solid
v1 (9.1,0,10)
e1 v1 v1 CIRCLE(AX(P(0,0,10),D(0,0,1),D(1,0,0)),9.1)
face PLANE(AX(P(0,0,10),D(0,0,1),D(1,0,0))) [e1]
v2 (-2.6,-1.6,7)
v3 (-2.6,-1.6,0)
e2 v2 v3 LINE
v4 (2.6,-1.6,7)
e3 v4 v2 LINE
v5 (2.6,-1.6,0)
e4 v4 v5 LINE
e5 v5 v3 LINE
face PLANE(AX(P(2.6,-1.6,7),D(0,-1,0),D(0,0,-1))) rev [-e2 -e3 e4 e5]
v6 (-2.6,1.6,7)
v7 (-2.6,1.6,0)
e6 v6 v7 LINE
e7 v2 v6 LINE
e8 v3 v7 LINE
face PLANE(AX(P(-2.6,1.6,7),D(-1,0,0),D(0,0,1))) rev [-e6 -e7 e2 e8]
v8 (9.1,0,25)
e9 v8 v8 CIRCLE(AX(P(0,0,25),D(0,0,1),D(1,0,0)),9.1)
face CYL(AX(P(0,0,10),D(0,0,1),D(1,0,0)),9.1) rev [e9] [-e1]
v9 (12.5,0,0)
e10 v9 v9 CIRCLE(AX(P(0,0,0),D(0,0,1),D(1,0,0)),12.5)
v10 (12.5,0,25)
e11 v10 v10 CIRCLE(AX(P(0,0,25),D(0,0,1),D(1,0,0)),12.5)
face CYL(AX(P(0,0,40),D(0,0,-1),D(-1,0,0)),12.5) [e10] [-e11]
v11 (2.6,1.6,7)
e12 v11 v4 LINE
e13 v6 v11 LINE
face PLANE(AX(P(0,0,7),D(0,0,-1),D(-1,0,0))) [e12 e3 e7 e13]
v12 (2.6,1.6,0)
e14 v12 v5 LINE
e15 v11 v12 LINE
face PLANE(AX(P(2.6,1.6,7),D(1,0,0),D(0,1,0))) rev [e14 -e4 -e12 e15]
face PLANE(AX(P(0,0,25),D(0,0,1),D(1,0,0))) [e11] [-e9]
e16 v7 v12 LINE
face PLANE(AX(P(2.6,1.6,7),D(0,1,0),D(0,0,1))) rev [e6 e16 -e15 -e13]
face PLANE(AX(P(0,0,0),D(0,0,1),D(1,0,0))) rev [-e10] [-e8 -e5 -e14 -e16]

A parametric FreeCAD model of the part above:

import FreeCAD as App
import Part
import Sketcher
Q = App.Units.Quantity


def add_polygon(sketch, points):
    """Adds a closed chain of lines whose ends are joined by coincident constraints."""
    first, n = sketch.GeometryCount, len(points)
    for a, b in zip(points, points[1:] + points[:1]):
        sketch.addGeometry(Part.LineSegment(App.Vector(*a, 0), App.Vector(*b, 0)), False)
    for i in range(n):
        sketch.addConstraint(Sketcher.Constraint("Coincident", first + i, 2, first + (i + 1) % n, 1))

doc = App.newDocument("Part")
body = doc.addObject("PartDesign::Body", "Body")

# Sketch on XY plane
sketch1 = doc.addObject("Sketcher::SketchObject", "Sketch")
body.addObject(sketch1)
sketch1.AttachmentSupport = (doc.XY_Plane, [""])
sketch1.MapMode = "FlatFace"
sketch1.addGeometry(Part.Circle(App.Vector(0, 0, 0), App.Vector(0, 0, 1), 12), False)
sketch1.addConstraint([
    Sketcher.Constraint("Coincident", 0, 3, -1, 1),
    Sketcher.Constraint("Diameter", 0, Q("25 mm")),
])
pad1 = doc.addObject("PartDesign::Pad", "Pad")
body.addObject(pad1)
pad1.Profile = sketch1
pad1.Length = 40

# Sketch on XY plane
sketch2 = doc.addObject("Sketcher::SketchObject", "Sketch001")
body.addObject(sketch2)
sketch2.AttachmentSupport = (doc.XY_Plane, [""])
sketch2.MapMode = "FlatFace"
sketch2.AttachmentOffset = App.Placement(App.Vector(0, 0, 40), App.Rotation())
sketch2.addGeometry(Part.Circle(App.Vector(0, 0, 0), App.Vector(0, 0, 1), 19), False)
sketch2.addConstraint([
    Sketcher.Constraint("Coincident", 0, 3, -1, 1),
    Sketcher.Constraint("Diameter", 0, Q("38 mm")),
])
pocket1 = doc.addObject("PartDesign::Pocket", "Pocket")
body.addObject(pocket1)
pocket1.Profile = sketch2
pocket1.Length = 15

# Sketch on XY plane
sketch3 = doc.addObject("Sketcher::SketchObject", "Sketch002")
body.addObject(sketch3)
sketch3.AttachmentSupport = (doc.XY_Plane, [""])
sketch3.MapMode = "FlatFace"
add_polygon(sketch3, [(2.6, 1.6), (2.6, -1.6), (-2.6, -1.6), (-2.6, 1.6)])  # lines 0-3
sketch3.addConstraint([
    Sketcher.Constraint("Vertical", 0),
    Sketcher.Constraint("Horizontal", 1),
    Sketcher.Constraint("Vertical", 2),
    Sketcher.Constraint("Horizontal", 3),
    Sketcher.Constraint("Symmetric", 0, 2, 2, 2, -1, 1),
    Sketcher.Constraint("DistanceX", 1, 2, 1, 1, Q("5.2 mm")),
    Sketcher.Constraint("DistanceY", 0, 2, 0, 1, Q("3.2 mm")),
])
pocket2 = doc.addObject("PartDesign::Pocket", "Pocket001")
body.addObject(pocket2)
pocket2.Profile = sketch3
pocket2.Length = 7
pocket2.Reversed = True

# Sketch on XY plane
sketch4 = doc.addObject("Sketcher::SketchObject", "Sketch003")
body.addObject(sketch4)
sketch4.AttachmentSupport = (doc.XY_Plane, [""])
sketch4.MapMode = "FlatFace"
sketch4.AttachmentOffset = App.Placement(App.Vector(0, 0, 25), App.Rotation())
sketch4.addGeometry(Part.Circle(App.Vector(0, 0, 0), App.Vector(0, 0, 1), 9), False)
sketch4.addConstraint([
    Sketcher.Constraint("Coincident", 0, 3, -1, 1),
    Sketcher.Constraint("Diameter", 0, Q("18.2 mm")),
])
pocket3 = doc.addObject("PartDesign::Pocket", "Pocket002")
body.addObject(pocket3)
pocket3.Profile = sketch4
pocket3.Length = 15

doc.recompute()
